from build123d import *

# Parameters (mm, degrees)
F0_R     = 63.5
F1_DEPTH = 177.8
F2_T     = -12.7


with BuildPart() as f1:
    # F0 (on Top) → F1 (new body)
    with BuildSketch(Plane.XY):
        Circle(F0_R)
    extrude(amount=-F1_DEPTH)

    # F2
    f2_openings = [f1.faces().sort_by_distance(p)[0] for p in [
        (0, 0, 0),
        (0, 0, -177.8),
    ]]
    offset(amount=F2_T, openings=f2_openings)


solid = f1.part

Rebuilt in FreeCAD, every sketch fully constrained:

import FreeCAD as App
import Part
import Sketcher
Q = App.Units.Quantity


def faces_at(feature, points):
    """Names of the faces that lie closest to the given points."""
    faces = feature.Shape.Faces
    near = lambda p: min(range(len(faces)), key=lambda i: faces[i].distToShape(Part.Vertex(*p))[0])
    return sorted({f"Face{near(p) + 1}" for p in points})

doc = App.newDocument("Part")
body = doc.addObject("PartDesign::Body", "Body")

# Sketch on XY plane
sketch1 = doc.addObject("Sketcher::SketchObject", "Sketch")
body.addObject(sketch1)
sketch1.AttachmentSupport = (doc.XY_Plane, [""])
sketch1.MapMode = "FlatFace"
sketch1.addGeometry(Part.Circle(App.Vector(0, 0, 0), App.Vector(0, 0, 1), 63.5), False)
sketch1.addConstraint([
    Sketcher.Constraint("Coincident", 0, 3, -1, 1),
    Sketcher.Constraint("Diameter", 0, Q("5 in")),
])
pad1 = doc.addObject("PartDesign::Pad", "Pad")
body.addObject(pad1)
pad1.Profile = sketch1
pad1.Length = Q("7 in")
pad1.Reversed = True
doc.recompute()

thickness = doc.addObject("PartDesign::Thickness", "Thickness")
body.addObject(thickness)
thickness.Base = (pad1, faces_at(pad1, [(0, 0, 0), (0, 0, -177.8)]))
thickness.Value = Q("0.5 in")
thickness.Reversed = True
thickness.Join = "Arc"

doc.recompute()
